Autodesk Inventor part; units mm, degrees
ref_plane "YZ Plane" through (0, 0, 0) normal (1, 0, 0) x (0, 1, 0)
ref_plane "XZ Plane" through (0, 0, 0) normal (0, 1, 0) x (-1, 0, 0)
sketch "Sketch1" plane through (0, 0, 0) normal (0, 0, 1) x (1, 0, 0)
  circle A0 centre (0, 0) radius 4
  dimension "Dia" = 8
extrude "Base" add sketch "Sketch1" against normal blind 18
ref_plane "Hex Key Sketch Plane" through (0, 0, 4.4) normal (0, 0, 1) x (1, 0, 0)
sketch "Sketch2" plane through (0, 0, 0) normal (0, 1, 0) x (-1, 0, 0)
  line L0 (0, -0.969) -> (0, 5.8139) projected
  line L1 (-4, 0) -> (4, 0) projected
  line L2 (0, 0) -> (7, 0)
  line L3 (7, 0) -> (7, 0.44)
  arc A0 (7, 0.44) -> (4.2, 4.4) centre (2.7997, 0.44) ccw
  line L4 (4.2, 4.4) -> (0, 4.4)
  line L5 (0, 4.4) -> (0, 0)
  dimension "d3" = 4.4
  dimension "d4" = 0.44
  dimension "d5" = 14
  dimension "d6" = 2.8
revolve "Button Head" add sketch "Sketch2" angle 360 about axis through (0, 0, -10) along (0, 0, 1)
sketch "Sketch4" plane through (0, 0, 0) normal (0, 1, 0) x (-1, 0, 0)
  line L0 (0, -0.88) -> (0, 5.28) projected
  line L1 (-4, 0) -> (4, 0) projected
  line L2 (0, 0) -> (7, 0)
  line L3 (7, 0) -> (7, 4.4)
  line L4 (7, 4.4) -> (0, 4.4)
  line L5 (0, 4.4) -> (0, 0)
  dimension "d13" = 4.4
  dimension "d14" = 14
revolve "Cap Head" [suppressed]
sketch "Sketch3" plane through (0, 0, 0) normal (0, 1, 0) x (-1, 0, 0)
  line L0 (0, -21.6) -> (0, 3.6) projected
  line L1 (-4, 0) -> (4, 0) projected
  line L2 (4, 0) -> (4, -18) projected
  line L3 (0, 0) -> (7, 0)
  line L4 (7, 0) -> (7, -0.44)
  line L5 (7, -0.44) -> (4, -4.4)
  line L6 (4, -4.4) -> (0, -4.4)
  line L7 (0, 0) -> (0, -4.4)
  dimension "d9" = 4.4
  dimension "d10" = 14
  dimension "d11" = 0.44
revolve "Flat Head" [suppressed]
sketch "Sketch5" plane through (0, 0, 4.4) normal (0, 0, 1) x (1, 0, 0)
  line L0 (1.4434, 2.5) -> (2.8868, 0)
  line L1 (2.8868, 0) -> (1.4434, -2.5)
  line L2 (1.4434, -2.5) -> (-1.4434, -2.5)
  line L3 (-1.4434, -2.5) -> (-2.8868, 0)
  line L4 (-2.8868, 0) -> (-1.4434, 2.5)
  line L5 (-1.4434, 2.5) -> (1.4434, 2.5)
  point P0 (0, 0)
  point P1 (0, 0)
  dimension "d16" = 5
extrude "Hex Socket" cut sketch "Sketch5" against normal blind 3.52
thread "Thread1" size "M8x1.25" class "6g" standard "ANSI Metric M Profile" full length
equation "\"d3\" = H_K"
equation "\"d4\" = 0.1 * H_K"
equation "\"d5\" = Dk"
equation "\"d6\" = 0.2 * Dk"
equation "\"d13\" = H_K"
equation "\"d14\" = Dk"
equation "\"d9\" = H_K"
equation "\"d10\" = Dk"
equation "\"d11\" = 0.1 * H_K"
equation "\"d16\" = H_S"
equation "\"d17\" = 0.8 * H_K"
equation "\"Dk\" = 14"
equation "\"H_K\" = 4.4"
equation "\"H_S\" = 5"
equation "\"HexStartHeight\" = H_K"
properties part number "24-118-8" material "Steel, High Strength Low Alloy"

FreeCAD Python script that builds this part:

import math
import FreeCAD as App
import Part
import Sketcher

V = App.Vector
Q = App.Units.Quantity


def add_polygon(sketch, points):
    """Adds a closed chain of lines whose ends are joined by coincident constraints."""
    first, n = sketch.GeometryCount, len(points)
    for a, b in zip(points, points[1:] + points[:1]):
        sketch.addGeometry(Part.LineSegment(App.Vector(*a, 0), App.Vector(*b, 0)), False)
    for i in range(n):
        sketch.addConstraint(Sketcher.Constraint("Coincident", first + i, 2, first + (i + 1) % n, 1))

doc = App.newDocument("Part")
params = doc.addObject("Spreadsheet::Sheet", "Params")
for row, (alias, value) in enumerate([
    ("sketch1_diameter", "8 mm"),
    ("pad1_length", "18 mm"),
    ("sketch2_height", "4.4 mm"),
    ("sketch2_height2", "0.44 mm"),
    ("sketch2_width", "7 mm"),
    ("revolution_angle", "360 deg"),
    ("pocket1_length", "3.52 mm"),
], start=1):
    params.set(f"A{row}", alias)
    params.set(f"B{row}", "=" + value)
    params.setAlias(f"B{row}", alias)

body = doc.addObject("PartDesign::Body", "Body")

# Sketch on XY plane
sketch1 = body.newObject("Sketcher::SketchObject", "Sketch")
sketch1.AttachmentSupport = (doc.getObject("XY_Plane"), [""])
sketch1.MapMode = "FlatFace"
sketch1.addGeometry(Part.Circle(V(0, 0, 0), V(0, 0, 1), 4), False)
sketch1.addConstraint(Sketcher.Constraint("Coincident", 0, 3, -1, 1))
sketch1.addConstraint(Sketcher.Constraint("Diameter", 0, 8.0))
sketch1.setExpression("Constraints[1]", "Params.sketch1_diameter")
pad1 = body.newObject("PartDesign::Pad", "Pad")
pad1.Profile = sketch1
pad1.setExpression("Length", "Params.pad1_length")
pad1.Reversed = True

# Sketch on XZ plane
sketch2 = body.newObject("Sketcher::SketchObject", "Sketch001")
sketch2.AttachmentSupport = (doc.getObject("XZ_Plane"), [""])
sketch2.MapMode = "FlatFace"
sketch2.addGeometry(Part.LineSegment(V(0, 4.4, 0), V(0, 0, 0)), False)
sketch2.addGeometry(Part.LineSegment(V(0, 0, 0), V(-7, 0, 0)), False)
sketch2.addGeometry(Part.LineSegment(V(-7, 0, 0), V(-7, 0.44, 0)), False)
sketch2.addGeometry(Part.ArcOfCircle(Part.Circle(V(-2.8, 0.44, 0), V(0, 0, 1), 4.2), math.radians(109), math.radians(180)), False)
sketch2.addGeometry(Part.LineSegment(V(-4.2, 4.4, 0), V(0, 4.4, 0)), False)
sketch2.addConstraint(Sketcher.Constraint("Coincident", 0, 2, 1, 1))
sketch2.addConstraint(Sketcher.Constraint("Coincident", 1, 2, 2, 1))
sketch2.addConstraint(Sketcher.Constraint("Tangent", 2, 2, 3, 2))
sketch2.addConstraint(Sketcher.Constraint("Coincident", 3, 1, 4, 1))
sketch2.addConstraint(Sketcher.Constraint("Coincident", 4, 2, 0, 1))
sketch2.addConstraint(Sketcher.Constraint("Vertical", 0))
sketch2.addConstraint(Sketcher.Constraint("Horizontal", 1))
sketch2.addConstraint(Sketcher.Constraint("Vertical", 2))
sketch2.addConstraint(Sketcher.Constraint("Horizontal", 4))
sketch2.addConstraint(Sketcher.Constraint("Coincident", 0, 2, -1, 1))
sketch2.addConstraint(Sketcher.Constraint("DistanceY", 0, 2, 0, 1, 4.4))
sketch2.addConstraint(Sketcher.Constraint("DistanceY", 2, 1, 2, 2, 0.44))
sketch2.addConstraint(Sketcher.Constraint("DistanceX", 2, 2, 3, 1, 2.8))
sketch2.addConstraint(Sketcher.Constraint("DistanceX", 1, 2, 1, 1, 7.0))
sketch2.setExpression("Constraints[10]", "Params.sketch2_height")
sketch2.setExpression("Constraints[11]", "Params.sketch2_height2")
sketch2.setExpression("Constraints[13]", "Params.sketch2_width")
revolution = body.newObject("PartDesign::Revolution", "Revolution")
revolution.Profile = sketch2
revolution.ReferenceAxis = (sketch2, ["V_Axis"])
revolution.setExpression("Angle", "Params.revolution_angle")

# Sketch on XY plane
sketch3 = body.newObject("Sketcher::SketchObject", "Sketch002")
sketch3.AttachmentSupport = (doc.getObject("XY_Plane"), [""])
sketch3.MapMode = "FlatFace"
sketch3.AttachmentOffset = App.Placement(V(0, 0, 4.4), App.Rotation())
add_polygon(sketch3, [(2.9, 0), (1.4, 2.5), (-1.4, 2.5), (-2.9, 0), (-1.4, -2.5), (1.4, -2.5)])  # lines 0-5
sketch3.addConstraint(Sketcher.Constraint("Horizontal", 1))
sketch3.addConstraint(Sketcher.Constraint("Horizontal", 4))
sketch3.addConstraint(Sketcher.Constraint("Symmetric", 0, 2, 3, 2, -1, 1))
sketch3.addConstraint(Sketcher.Constraint("Symmetric", 2, 2, 5, 2, -1, 1))
sketch3.addConstraint(Sketcher.Constraint("PointOnObject", 2, 2, -1))
sketch3.addConstraint(Sketcher.Constraint("Parallel", 2, 5))
sketch3.addConstraint(Sketcher.Constraint("Vertical", 1, 2, 3, 2))
sketch3.addConstraint(Sketcher.Constraint("DistanceY", 3, 2, 1, 2, 5.0))
sketch3.addConstraint(Sketcher.Constraint("Angle", 0, Q("120.0004 deg")))
sketch3.addConstraint(Sketcher.Constraint("DistanceX", 1, 2, 1, 1, 2.8868))
pocket1 = body.newObject("PartDesign::Pocket", "Pocket")
pocket1.Profile = sketch3
pocket1.setExpression("Length", "Params.pocket1_length")

doc.recompute()
